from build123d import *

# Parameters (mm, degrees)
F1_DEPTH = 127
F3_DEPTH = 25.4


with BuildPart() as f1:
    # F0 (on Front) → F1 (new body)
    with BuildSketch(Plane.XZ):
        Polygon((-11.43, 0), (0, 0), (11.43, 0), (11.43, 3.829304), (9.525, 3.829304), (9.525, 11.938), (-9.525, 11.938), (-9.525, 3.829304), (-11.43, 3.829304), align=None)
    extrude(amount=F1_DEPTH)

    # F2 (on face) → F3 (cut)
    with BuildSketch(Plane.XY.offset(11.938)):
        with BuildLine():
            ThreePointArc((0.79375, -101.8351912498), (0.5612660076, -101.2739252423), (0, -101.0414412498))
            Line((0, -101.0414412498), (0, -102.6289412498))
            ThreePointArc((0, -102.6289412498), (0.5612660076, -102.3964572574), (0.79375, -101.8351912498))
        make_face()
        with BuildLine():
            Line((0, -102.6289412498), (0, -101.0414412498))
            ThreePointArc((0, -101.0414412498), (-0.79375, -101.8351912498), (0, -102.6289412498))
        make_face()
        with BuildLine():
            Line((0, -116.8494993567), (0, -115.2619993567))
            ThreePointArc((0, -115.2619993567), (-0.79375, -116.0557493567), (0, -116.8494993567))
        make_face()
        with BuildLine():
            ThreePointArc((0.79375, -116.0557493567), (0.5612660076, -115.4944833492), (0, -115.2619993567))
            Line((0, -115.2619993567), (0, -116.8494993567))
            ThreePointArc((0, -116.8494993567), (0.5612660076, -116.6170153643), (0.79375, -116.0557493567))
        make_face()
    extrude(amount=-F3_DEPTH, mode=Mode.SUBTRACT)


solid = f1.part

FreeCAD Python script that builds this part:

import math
import FreeCAD as App
import Part
import Sketcher
from FreeCAD import Vector
Q = App.Units.Quantity

doc = App.newDocument("Part")
params = doc.addObject("Spreadsheet::Sheet", "Params")
for row, (alias, value) in enumerate([
    ("sketch1_width", "0.9 in"),
    ("sketch1_width2", "0.75 in"),
    ("pad1_length", "5 in"),
    ("sketch2_radius", "0.03125 in"),
    ("pocket1_length", "1 in"),
], start=1):
    params.set(f"A{row}", alias)
    params.set(f"B{row}", "=" + value)
    params.setAlias(f"B{row}", alias)

body = doc.addObject("PartDesign::Body", "Body")

# Sketch on XZ plane
sketch1 = body.newObject("Sketcher::SketchObject", "Sketch")
sketch1.AttachmentSupport = (doc.getObject("XZ_Plane"), [""])
sketch1.MapMode = "FlatFace"
sketch1.addGeometry([
    Part.LineSegment(Vector(-11.4, 0, 0), Vector(11.4, 0, 0)),  # 0
    Part.LineSegment(Vector(11.4, 0, 0), Vector(11.4, 3.8, 0)),  # 1
    Part.LineSegment(Vector(11.4, 3.8, 0), Vector(9.5, 3.8, 0)),  # 2
    Part.LineSegment(Vector(9.5, 3.8, 0), Vector(9.5, 11.9, 0)),  # 3
    Part.LineSegment(Vector(9.5, 11.9, 0), Vector(-9.5, 11.9, 0)),  # 4
    Part.LineSegment(Vector(-9.5, 11.9, 0), Vector(-9.5, 3.8, 0)),  # 5
    Part.LineSegment(Vector(-9.5, 3.8, 0), Vector(-11.4, 3.8, 0)),  # 6
    Part.LineSegment(Vector(-11.4, 3.8, 0), Vector(-11.4, 0, 0)),  # 7
], False)
sketch1.addConstraint([
    Sketcher.Constraint("Coincident", 0, 2, 1, 1),
    Sketcher.Constraint("Coincident", 1, 2, 2, 1),
    Sketcher.Constraint("Coincident", 2, 2, 3, 1),
    Sketcher.Constraint("Coincident", 3, 2, 4, 1),
    Sketcher.Constraint("Coincident", 4, 2, 5, 1),
    Sketcher.Constraint("Coincident", 5, 2, 6, 1),
    Sketcher.Constraint("Coincident", 6, 2, 7, 1),
    Sketcher.Constraint("Coincident", 7, 2, 0, 1),
    Sketcher.Constraint("Horizontal", 0),
    Sketcher.Constraint("Vertical", 1),
    Sketcher.Constraint("Horizontal", 2),
    Sketcher.Constraint("Vertical", 3),
    Sketcher.Constraint("Horizontal", 4),
    Sketcher.Constraint("Vertical", 5),
    Sketcher.Constraint("Horizontal", 6),
    Sketcher.Constraint("Vertical", 7),
    Sketcher.Constraint("Symmetric", 0, 2, 7, 2, -1, 1),
    Sketcher.Constraint("Symmetric", 2, 2, 5, 2, -2),
    Sketcher.Constraint("DistanceX", 0, 1, 0, 2, Q("0.9 in")),
    Sketcher.Constraint("DistanceX", 4, 2, 4, 1, Q("0.75 in")),
    Sketcher.Constraint("DistanceY", -1, 1, 3, 2, Q("0.47 in")),
    Sketcher.Constraint("DistanceY", 1, 1, 1, 2, 3.829304),
])
sketch1.setExpression("Constraints[18]", "Params.sketch1_width")
sketch1.setExpression("Constraints[19]", "Params.sketch1_width2")
pad1 = body.newObject("PartDesign::Pad", "Pad")
pad1.Profile = sketch1
pad1.setExpression("Length", "Params.pad1_length")

# Sketch on XY plane
sketch2 = body.newObject("Sketcher::SketchObject", "Sketch001")
sketch2.AttachmentSupport = (doc.getObject("XY_Plane"), [""])
sketch2.MapMode = "FlatFace"
sketch2.AttachmentOffset = App.Placement(Vector(0, 0, 0.47 * 25.4), App.Rotation())
sketch2.addGeometry([
    Part.ArcOfCircle(Part.Circle(Vector(0, -101.8, 0), Vector(0, 0, 1), 0.8), math.radians(0), math.radians(90)),  # 0
    Part.ArcOfCircle(Part.Circle(Vector(0, -101.8, 0), Vector(0, 0, 1), 0.8), math.radians(90), math.radians(270)),  # 1
    Part.ArcOfCircle(Part.Circle(Vector(0, -101.8, 0), Vector(0, 0, 1), 0.8), math.radians(-90), math.radians(0)),  # 2
    Part.ArcOfCircle(Part.Circle(Vector(0, -116.1, 0), Vector(0, 0, 1), 0.8), math.radians(90), math.radians(270)),  # 3
    Part.ArcOfCircle(Part.Circle(Vector(0, -116.1, 0), Vector(0, 0, 1), 0.8), math.radians(-90), math.radians(0)),  # 4
    Part.ArcOfCircle(Part.Circle(Vector(0, -116.1, 0), Vector(0, 0, 1), 0.8), math.radians(0), math.radians(90)),  # 5
], False)
sketch2.addConstraint([
    Sketcher.Constraint("Tangent", 0, 2, 1, 1),
    Sketcher.Constraint("Tangent", 1, 2, 2, 1),
    Sketcher.Constraint("Tangent", 2, 2, 0, 1),
    Sketcher.Constraint("Tangent", 3, 2, 4, 1),
    Sketcher.Constraint("Tangent", 4, 2, 5, 1),
    Sketcher.Constraint("Tangent", 5, 2, 3, 1),
    Sketcher.Constraint("Equal", 2, 3),
    Sketcher.Constraint("PointOnObject", 0, 3, -2),
    Sketcher.Constraint("PointOnObject", 3, 3, -2),
    Sketcher.Constraint("PointOnObject", 0, 2, -2),
    Sketcher.Constraint("PointOnObject", 1, 2, -2),
    Sketcher.Constraint("PointOnObject", 3, 2, -2),
    Sketcher.Constraint("PointOnObject", 5, 2, -2),
    Sketcher.Constraint("Horizontal", 1, 3, 2, 2),
    Sketcher.Constraint("Horizontal", 5, 3, 4, 2),
    Sketcher.Constraint("Radius", 0, Q("0.03125 in")),
    Sketcher.Constraint("DistanceY", 3, 2, -1, 1, 116.849499),
    Sketcher.Constraint("DistanceY", 0, 3, -1, 1, 101.835191),
])
sketch2.setExpression("Constraints[15]", "Params.sketch2_radius")
pocket1 = body.newObject("PartDesign::Pocket", "Pocket")
pocket1.Profile = sketch2
pocket1.setExpression("Length", "Params.pocket1_length")

doc.recompute()
